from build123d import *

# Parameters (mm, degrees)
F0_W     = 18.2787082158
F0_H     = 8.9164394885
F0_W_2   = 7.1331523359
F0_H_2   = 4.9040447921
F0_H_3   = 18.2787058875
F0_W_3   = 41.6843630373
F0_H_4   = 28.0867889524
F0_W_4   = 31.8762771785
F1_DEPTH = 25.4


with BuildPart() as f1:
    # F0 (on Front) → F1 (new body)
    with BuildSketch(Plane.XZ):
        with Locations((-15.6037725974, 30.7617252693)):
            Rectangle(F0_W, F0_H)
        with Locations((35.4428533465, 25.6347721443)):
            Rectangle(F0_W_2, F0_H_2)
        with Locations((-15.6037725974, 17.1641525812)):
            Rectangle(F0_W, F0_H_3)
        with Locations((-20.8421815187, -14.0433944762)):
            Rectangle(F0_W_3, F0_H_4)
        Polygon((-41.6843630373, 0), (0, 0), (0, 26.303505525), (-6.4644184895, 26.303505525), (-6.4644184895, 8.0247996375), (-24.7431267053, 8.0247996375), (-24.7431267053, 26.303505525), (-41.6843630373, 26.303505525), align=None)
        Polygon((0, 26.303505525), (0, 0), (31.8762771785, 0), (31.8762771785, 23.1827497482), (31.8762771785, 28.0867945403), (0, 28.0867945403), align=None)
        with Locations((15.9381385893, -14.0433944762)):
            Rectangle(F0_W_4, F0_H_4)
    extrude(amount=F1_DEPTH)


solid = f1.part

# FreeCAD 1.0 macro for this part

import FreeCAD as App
import Part
import Sketcher


def add_polygon(sketch, points):
    """Adds a closed chain of lines whose ends are joined by coincident constraints."""
    first, n = sketch.GeometryCount, len(points)
    for a, b in zip(points, points[1:] + points[:1]):
        sketch.addGeometry(Part.LineSegment(App.Vector(*a, 0), App.Vector(*b, 0)), False)
    for i in range(n):
        sketch.addConstraint(Sketcher.Constraint("Coincident", first + i, 2, first + (i + 1) % n, 1))

doc = App.newDocument("Part")
params = doc.addObject("Spreadsheet::Sheet", "Params")
for row, (alias, value) in enumerate([
    ("pad1_length", "1 in"),
], start=1):
    params.set(f"A{row}", alias)
    params.set(f"B{row}", "=" + value)
    params.setAlias(f"B{row}", alias)

body = doc.addObject("PartDesign::Body", "Body")

# Sketch on XZ plane
sketch1 = body.newObject("Sketcher::SketchObject", "Sketch")
sketch1.AttachmentSupport = (doc.getObject("XZ_Plane"), [""])
sketch1.MapMode = "FlatFace"
add_polygon(sketch1, [(-24.7, 35.2), (-24.7, 26.3), (-41.7, 26.3), (-41.7, -28.1), (31.9, -28.1), (31.9, 23.2), (39, 23.2), (39, 28.1), (31.9, 28.1), (0, 28.1), (0, 26.3), (-6.5, 26.3), (-6.5, 35.2)])  # lines 0-12
sketch1.addConstraint(Sketcher.Constraint("Vertical", 0))
sketch1.addConstraint(Sketcher.Constraint("Horizontal", 1))
sketch1.addConstraint(Sketcher.Constraint("Vertical", 2))
sketch1.addConstraint(Sketcher.Constraint("Horizontal", 3))
sketch1.addConstraint(Sketcher.Constraint("Vertical", 4))
sketch1.addConstraint(Sketcher.Constraint("Horizontal", 5))
sketch1.addConstraint(Sketcher.Constraint("Vertical", 6))
sketch1.addConstraint(Sketcher.Constraint("Horizontal", 7))
sketch1.addConstraint(Sketcher.Constraint("Horizontal", 8))
sketch1.addConstraint(Sketcher.Constraint("Vertical", 9))
sketch1.addConstraint(Sketcher.Constraint("Horizontal", 10))
sketch1.addConstraint(Sketcher.Constraint("Vertical", 11))
sketch1.addConstraint(Sketcher.Constraint("Horizontal", 12))
sketch1.addConstraint(Sketcher.Constraint("Symmetric", 3, 2, 7, 2, -1))
sketch1.addConstraint(Sketcher.Constraint("PointOnObject", 8, 2, -2))
sketch1.addConstraint(Sketcher.Constraint("Horizontal", 1, 2, 9, 2))
sketch1.addConstraint(Sketcher.Constraint("DistanceX", 3, 1, 3, 2, 73.56064))
sketch1.addConstraint(Sketcher.Constraint("DistanceX", 10, 2, 10, 1, 6.464418))
sketch1.addConstraint(Sketcher.Constraint("DistanceX", 12, 2, 12, 1, 18.278708))
sketch1.addConstraint(Sketcher.Constraint("DistanceY", 0, 2, 0, 1, 8.916439))
sketch1.addConstraint(Sketcher.Constraint("DistanceY", 4, 1, 4, 2, 51.269539))
sketch1.addConstraint(Sketcher.Constraint("DistanceY", 9, 2, 9, 1, 1.783289))
sketch1.addConstraint(Sketcher.Constraint("DistanceX", 1, 2, 1, 1, 16.941236))
sketch1.addConstraint(Sketcher.Constraint("DistanceX", 5, 1, 5, 2, 7.133152))
sketch1.addConstraint(Sketcher.Constraint("DistanceY", 2, 2, 2, 1, 54.390294))
pad1 = body.newObject("PartDesign::Pad", "Pad")
pad1.Profile = sketch1
pad1.setExpression("Length", "Params.pad1_length")

doc.recompute()
